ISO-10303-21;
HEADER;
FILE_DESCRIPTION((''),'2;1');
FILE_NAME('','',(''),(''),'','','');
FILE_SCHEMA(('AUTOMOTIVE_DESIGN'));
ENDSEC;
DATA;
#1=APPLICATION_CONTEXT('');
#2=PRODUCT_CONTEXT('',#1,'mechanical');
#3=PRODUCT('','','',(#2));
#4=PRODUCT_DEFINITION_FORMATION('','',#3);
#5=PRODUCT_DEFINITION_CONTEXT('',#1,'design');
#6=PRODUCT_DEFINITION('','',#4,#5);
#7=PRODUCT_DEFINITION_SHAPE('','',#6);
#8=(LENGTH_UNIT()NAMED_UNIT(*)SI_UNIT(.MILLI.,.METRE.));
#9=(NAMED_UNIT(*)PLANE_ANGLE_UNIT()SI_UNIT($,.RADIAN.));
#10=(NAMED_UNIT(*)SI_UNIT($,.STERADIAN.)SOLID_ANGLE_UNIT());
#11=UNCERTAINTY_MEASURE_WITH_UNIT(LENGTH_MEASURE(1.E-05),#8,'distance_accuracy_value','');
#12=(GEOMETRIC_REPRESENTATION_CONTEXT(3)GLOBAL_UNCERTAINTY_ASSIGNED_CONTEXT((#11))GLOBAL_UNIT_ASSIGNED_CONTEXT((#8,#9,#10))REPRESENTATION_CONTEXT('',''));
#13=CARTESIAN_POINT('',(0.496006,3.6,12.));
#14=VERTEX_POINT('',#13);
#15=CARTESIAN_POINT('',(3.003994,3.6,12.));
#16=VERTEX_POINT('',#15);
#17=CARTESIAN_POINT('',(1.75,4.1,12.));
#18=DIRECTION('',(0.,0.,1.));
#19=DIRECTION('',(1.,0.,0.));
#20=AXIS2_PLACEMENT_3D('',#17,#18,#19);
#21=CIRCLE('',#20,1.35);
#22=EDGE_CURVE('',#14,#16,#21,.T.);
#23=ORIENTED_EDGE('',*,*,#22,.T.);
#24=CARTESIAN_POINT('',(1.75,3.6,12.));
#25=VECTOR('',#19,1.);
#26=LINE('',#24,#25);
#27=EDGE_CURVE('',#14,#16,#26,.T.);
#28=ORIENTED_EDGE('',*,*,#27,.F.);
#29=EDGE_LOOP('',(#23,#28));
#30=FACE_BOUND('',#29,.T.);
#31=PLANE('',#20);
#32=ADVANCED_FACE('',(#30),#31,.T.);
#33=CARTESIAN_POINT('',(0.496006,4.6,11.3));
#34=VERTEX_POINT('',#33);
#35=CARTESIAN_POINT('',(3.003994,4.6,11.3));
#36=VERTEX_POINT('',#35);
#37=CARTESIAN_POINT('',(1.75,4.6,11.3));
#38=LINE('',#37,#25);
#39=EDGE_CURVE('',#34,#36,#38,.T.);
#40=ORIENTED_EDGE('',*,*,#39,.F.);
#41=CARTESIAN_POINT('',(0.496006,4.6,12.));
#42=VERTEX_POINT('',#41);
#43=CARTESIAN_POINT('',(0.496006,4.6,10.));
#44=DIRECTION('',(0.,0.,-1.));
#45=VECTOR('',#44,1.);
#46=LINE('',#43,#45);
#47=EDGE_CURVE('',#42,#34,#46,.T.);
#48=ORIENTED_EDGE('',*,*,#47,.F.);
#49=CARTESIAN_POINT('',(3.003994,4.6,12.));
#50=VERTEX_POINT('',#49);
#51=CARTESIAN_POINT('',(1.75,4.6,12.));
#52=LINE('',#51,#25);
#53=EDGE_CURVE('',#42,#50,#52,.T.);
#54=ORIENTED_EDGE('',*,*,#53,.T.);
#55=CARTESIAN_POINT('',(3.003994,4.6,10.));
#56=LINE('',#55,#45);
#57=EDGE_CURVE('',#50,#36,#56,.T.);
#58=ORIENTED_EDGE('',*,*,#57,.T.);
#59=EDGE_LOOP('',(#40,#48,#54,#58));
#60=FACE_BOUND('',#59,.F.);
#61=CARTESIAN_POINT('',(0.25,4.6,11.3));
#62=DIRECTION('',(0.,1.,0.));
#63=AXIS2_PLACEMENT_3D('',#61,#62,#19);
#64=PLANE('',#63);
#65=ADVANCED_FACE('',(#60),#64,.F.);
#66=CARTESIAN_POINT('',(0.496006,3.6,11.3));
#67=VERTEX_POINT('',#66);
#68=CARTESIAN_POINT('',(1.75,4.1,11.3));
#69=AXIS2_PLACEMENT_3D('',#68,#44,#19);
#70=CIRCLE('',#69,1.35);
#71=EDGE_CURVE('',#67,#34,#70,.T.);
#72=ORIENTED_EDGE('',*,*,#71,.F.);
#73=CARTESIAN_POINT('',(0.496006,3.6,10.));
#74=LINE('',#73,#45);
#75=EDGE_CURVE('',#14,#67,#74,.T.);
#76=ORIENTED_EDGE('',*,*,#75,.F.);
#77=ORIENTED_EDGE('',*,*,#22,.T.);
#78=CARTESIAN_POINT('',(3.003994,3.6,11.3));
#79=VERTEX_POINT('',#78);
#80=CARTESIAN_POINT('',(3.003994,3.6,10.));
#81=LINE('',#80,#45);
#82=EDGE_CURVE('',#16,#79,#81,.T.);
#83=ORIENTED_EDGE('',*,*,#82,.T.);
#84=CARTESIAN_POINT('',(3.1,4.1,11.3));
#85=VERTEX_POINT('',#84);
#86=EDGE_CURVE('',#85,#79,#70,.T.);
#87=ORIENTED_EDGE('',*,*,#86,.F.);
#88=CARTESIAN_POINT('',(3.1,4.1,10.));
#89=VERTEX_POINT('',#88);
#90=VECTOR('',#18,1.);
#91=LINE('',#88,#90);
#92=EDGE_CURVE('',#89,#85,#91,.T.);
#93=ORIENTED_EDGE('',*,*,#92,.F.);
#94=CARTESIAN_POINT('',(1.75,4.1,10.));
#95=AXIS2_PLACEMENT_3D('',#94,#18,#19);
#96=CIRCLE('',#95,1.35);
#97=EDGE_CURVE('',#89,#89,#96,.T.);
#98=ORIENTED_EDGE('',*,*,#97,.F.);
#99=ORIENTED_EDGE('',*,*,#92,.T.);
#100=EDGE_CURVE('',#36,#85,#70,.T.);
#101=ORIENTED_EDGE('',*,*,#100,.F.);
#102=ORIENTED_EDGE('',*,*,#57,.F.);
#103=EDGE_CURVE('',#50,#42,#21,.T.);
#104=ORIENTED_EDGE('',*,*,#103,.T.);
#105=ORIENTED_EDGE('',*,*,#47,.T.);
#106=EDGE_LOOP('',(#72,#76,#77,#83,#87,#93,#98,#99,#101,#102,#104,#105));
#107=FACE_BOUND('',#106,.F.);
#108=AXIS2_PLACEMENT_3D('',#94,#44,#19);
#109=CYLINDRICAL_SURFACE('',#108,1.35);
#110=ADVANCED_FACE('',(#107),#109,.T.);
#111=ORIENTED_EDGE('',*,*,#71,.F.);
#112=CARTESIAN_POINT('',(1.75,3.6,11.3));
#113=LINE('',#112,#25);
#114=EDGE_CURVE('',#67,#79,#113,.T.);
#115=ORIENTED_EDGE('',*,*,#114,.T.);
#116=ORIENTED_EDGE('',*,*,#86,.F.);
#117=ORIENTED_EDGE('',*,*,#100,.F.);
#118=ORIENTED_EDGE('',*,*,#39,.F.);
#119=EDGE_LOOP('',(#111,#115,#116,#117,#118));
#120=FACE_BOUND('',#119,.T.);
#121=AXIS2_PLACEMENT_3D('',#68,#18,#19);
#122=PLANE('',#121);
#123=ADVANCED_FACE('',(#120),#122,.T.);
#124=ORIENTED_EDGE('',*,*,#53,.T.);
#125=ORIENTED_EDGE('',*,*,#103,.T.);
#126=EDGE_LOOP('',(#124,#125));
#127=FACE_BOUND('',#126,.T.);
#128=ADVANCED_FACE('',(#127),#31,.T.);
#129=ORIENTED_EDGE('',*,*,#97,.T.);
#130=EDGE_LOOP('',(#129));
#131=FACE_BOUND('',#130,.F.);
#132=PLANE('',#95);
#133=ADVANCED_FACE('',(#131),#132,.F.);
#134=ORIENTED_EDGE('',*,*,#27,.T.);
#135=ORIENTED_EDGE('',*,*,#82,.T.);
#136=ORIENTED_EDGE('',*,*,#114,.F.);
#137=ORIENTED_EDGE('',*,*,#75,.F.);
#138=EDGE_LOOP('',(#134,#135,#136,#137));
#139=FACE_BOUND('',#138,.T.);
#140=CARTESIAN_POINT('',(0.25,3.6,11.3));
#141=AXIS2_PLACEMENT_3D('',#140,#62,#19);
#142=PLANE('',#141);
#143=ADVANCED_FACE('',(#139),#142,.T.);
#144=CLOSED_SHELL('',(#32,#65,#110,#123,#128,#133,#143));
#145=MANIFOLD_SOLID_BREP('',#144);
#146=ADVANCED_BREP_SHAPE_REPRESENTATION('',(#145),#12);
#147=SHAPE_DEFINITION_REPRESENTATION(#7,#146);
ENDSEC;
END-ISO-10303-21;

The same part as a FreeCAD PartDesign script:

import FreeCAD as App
import Part
import Sketcher

doc = App.newDocument("Part")
params = doc.addObject("Spreadsheet::Sheet", "Params")
for row, (alias, value) in enumerate([
    ("sketch1_width", "3 mm"),
    ("sketch1_height", "1 mm"),
    ("pad1_length", "0.7 mm"),
    ("sketch2_diameter", "2.7 mm"),
    ("pad2_length", "2 mm"),
], start=1):
    params.set(f"A{row}", alias)
    params.set(f"B{row}", "=" + value)
    params.setAlias(f"B{row}", alias)

body = doc.addObject("PartDesign::Body", "Body")

# Sketch on XY plane
sketch1 = body.newObject("Sketcher::SketchObject", "Sketch")
sketch1.AttachmentSupport = (doc.getObject("XY_Plane"), [""])
sketch1.MapMode = "FlatFace"
sketch1.AttachmentOffset = App.Placement(App.Vector(0, 0, 1.3), App.Rotation())
sketch1.addGeometry(Part.LineSegment(App.Vector(-1.5, 0.5, 0), App.Vector(-1.5, -0.5, 0)), False)
sketch1.addGeometry(Part.LineSegment(App.Vector(-1.5, -0.5, 0), App.Vector(1.5, -0.5, 0)), False)
sketch1.addGeometry(Part.LineSegment(App.Vector(1.5, -0.5, 0), App.Vector(1.5, 0.5, 0)), False)
sketch1.addGeometry(Part.LineSegment(App.Vector(1.5, 0.5, 0), App.Vector(-1.5, 0.5, 0)), False)
sketch1.addConstraint(Sketcher.Constraint("Coincident", 0, 2, 1, 1))
sketch1.addConstraint(Sketcher.Constraint("Coincident", 1, 2, 2, 1))
sketch1.addConstraint(Sketcher.Constraint("Coincident", 2, 2, 3, 1))
sketch1.addConstraint(Sketcher.Constraint("Coincident", 3, 2, 0, 1))
sketch1.addConstraint(Sketcher.Constraint("Vertical", 0))
sketch1.addConstraint(Sketcher.Constraint("Horizontal", 1))
sketch1.addConstraint(Sketcher.Constraint("Vertical", 2))
sketch1.addConstraint(Sketcher.Constraint("Horizontal", 3))
sketch1.addConstraint(Sketcher.Constraint("Symmetric", 0, 2, 2, 2, -1, 1))
sketch1.addConstraint(Sketcher.Constraint("DistanceX", 1, 1, 1, 2, 3.0))
sketch1.addConstraint(Sketcher.Constraint("DistanceY", 0, 2, 0, 1, 1.0))
sketch1.setExpression("Constraints[9]", "Params.sketch1_width")
sketch1.setExpression("Constraints[10]", "Params.sketch1_height")
pad1 = body.newObject("PartDesign::Pad", "Pad")
pad1.Profile = sketch1
pad1.setExpression("Length", "Params.pad1_length")
body2 = doc.addObject("PartDesign::Body", "Body001")

# Sketch on XY plane
sketch2 = body2.newObject("Sketcher::SketchObject", "Sketch001")
sketch2.AttachmentSupport = (doc.getObject("XY_Plane001"), [""])
sketch2.MapMode = "FlatFace"
sketch2.addGeometry(Part.Circle(App.Vector(0, 0, 0), App.Vector(0, 0, 1), 1.4), False)
sketch2.addConstraint(Sketcher.Constraint("Coincident", 0, 3, -1, 1))
sketch2.addConstraint(Sketcher.Constraint("Diameter", 0, 2.7))
sketch2.setExpression("Constraints[1]", "Params.sketch2_diameter")
pad2 = body2.newObject("PartDesign::Pad", "Pad001")
pad2.Profile = sketch2
pad2.setExpression("Length", "Params.pad2_length")
doc.recompute()

boolean = body2.newObject("PartDesign::Boolean", "Boolean")
boolean.Type = "Cut"
boolean.addObjects([body])
body3 = doc.addObject("PartDesign::Body", "Body002")
doc.recompute()

body2.Placement = App.Placement(App.Vector(1.75, 4.1, 10), App.Rotation(App.Vector(0, 0, 1), 0))
boolean2 = body3.newObject("PartDesign::Boolean", "Boolean001")
boolean2.Type = "Fuse"
boolean2.addObjects([body2])

doc.recompute()
